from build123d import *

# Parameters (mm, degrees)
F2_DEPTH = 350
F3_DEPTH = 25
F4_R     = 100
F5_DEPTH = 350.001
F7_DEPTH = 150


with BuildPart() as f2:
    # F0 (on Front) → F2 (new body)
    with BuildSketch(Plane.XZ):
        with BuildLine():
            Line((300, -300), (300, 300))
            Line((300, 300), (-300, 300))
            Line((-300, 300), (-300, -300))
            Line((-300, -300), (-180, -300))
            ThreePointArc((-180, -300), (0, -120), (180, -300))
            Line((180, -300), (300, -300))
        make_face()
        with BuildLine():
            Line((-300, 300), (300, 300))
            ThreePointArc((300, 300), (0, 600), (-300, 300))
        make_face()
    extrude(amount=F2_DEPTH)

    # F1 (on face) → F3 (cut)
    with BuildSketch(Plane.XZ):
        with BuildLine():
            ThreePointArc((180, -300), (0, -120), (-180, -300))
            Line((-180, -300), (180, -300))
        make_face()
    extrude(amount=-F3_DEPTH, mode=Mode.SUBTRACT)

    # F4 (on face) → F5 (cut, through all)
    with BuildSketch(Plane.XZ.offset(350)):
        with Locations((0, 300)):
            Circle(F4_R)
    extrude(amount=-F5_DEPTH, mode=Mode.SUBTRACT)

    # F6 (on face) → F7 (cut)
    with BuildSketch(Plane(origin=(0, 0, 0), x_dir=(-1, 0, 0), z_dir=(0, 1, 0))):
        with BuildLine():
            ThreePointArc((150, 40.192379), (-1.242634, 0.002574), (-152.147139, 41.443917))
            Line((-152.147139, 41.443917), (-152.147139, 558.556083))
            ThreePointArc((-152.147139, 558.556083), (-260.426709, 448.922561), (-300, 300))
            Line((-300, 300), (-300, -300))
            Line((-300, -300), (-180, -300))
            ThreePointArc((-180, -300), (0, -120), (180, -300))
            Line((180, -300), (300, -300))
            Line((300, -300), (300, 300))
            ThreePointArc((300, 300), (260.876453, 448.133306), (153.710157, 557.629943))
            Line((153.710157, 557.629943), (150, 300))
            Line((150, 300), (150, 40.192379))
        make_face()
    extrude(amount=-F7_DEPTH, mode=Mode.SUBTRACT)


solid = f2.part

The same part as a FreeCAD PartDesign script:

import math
import FreeCAD as App
import Part
import Sketcher
from FreeCAD import Vector

doc = App.newDocument("Part")
body = doc.addObject("PartDesign::Body", "Body")

sketch1 = body.newObject("Sketcher::SketchObject", "Sketch")
sketch1.AttachmentSupport = (doc.getObject("XZ_Plane"), [""])
sketch1.MapMode = "FlatFace"
sketch1.addGeometry(Part.LineSegment(Vector(300, -300, 0), Vector(300, 300, 0)), False)
sketch1.addGeometry(Part.ArcOfCircle(Part.Circle(Vector(0, 300, 0), Vector(0, 0, 1), 300), math.radians(0), math.radians(180)), False)
sketch1.addGeometry(Part.LineSegment(Vector(-300, 300, 0), Vector(-300, -300, 0)), False)
sketch1.addGeometry(Part.LineSegment(Vector(-300, -300, 0), Vector(-180, -300, 0)), False)
sketch1.addGeometry(Part.ArcOfCircle(Part.Circle(Vector(0, -300, 0), Vector(0, 0, 1), 180), math.radians(0), math.radians(180)), False)
sketch1.addGeometry(Part.LineSegment(Vector(180, -300, 0), Vector(300, -300, 0)), False)
sketch1.addConstraint(Sketcher.Constraint("Tangent", 0, 2, 1, 1))
sketch1.addConstraint(Sketcher.Constraint("Tangent", 1, 2, 2, 1))
sketch1.addConstraint(Sketcher.Constraint("Coincident", 2, 2, 3, 1))
sketch1.addConstraint(Sketcher.Constraint("Coincident", 3, 2, 4, 2))
sketch1.addConstraint(Sketcher.Constraint("Coincident", 4, 1, 5, 1))
sketch1.addConstraint(Sketcher.Constraint("Coincident", 5, 2, 0, 1))
sketch1.addConstraint(Sketcher.Constraint("Vertical", 0))
sketch1.addConstraint(Sketcher.Constraint("Vertical", 2))
sketch1.addConstraint(Sketcher.Constraint("Horizontal", 3))
sketch1.addConstraint(Sketcher.Constraint("Horizontal", 5))
sketch1.addConstraint(Sketcher.Constraint("Symmetric", 1, 3, 4, 3, -1, 1))
sketch1.addConstraint(Sketcher.Constraint("Symmetric", 0, 2, 2, 2, -1, 1))
sketch1.addConstraint(Sketcher.Constraint("Horizontal", 3, 2, 4, 1))
sketch1.addConstraint(Sketcher.Constraint("Radius", 1, 300.0))
sketch1.addConstraint(Sketcher.Constraint("Radius", 4, 180.0))
sketch1.addConstraint(Sketcher.Constraint("DistanceY", 0, 1, 0, 2, 600.0))
pad1 = body.newObject("PartDesign::Pad", "Pad")
pad1.Profile = sketch1
pad1.Length = 350

sketch2 = body.newObject("Sketcher::SketchObject", "Sketch001")
sketch2.AttachmentSupport = (doc.getObject("XZ_Plane"), [""])
sketch2.MapMode = "FlatFace"
sketch2.addGeometry(Part.ArcOfCircle(Part.Circle(Vector(0, -300, 0), Vector(0, 0, 1), 180), math.radians(0), math.radians(180)), False)
sketch2.addGeometry(Part.LineSegment(Vector(-180, -300, 0), Vector(180, -300, 0)), False)
sketch2.addConstraint(Sketcher.Constraint("Coincident", 0, 1, 1, 2))
sketch2.addConstraint(Sketcher.Constraint("Coincident", 1, 1, 0, 2))
sketch2.addConstraint(Sketcher.Constraint("Horizontal", 1))
sketch2.addConstraint(Sketcher.Constraint("PointOnObject", 0, 3, -2))
sketch2.addConstraint(Sketcher.Constraint("Radius", 0, 180.0))
sketch2.addConstraint(Sketcher.Constraint("DistanceY", 0, 3, -1, 1, 300.0))
sketch2.addConstraint(Sketcher.Constraint("DistanceY", 0, 1, -1, 1, 300.0))
pocket1 = body.newObject("PartDesign::Pocket", "Pocket")
pocket1.Profile = sketch2
pocket1.Length = 25

sketch3 = body.newObject("Sketcher::SketchObject", "Sketch002")
sketch3.AttachmentSupport = (doc.getObject("XZ_Plane"), [""])
sketch3.MapMode = "FlatFace"
sketch3.AttachmentOffset = App.Placement(Vector(0, 0, 350), App.Rotation())
sketch3.addGeometry(Part.Circle(Vector(0, 300, 0), Vector(0, 0, 1), 100), False)
sketch3.addConstraint(Sketcher.Constraint("PointOnObject", 0, 3, -2))
sketch3.addConstraint(Sketcher.Constraint("Diameter", 0, 200.0))
sketch3.addConstraint(Sketcher.Constraint("DistanceY", -1, 1, 0, 3, 300.0))
pocket2 = body.newObject("PartDesign::Pocket", "Pocket001")
pocket2.Profile = sketch3
pocket2.Type = "ThroughAll"

sketch4 = body.newObject("Sketcher::SketchObject", "Sketch003")
sketch4.AttachmentSupport = (doc.getObject("XZ_Plane"), [""])
sketch4.MapMode = "FlatFace"
sketch4.addGeometry(Part.ArcOfCircle(Part.Circle(Vector(0, 300, 0), Vector(0, 0, 1), 300), math.radians(-120), math.radians(-60)), False)
sketch4.addGeometry(Part.LineSegment(Vector(152, 41, 0), Vector(152, 559, 0)), False)
sketch4.addGeometry(Part.ArcOfCircle(Part.Circle(Vector(0, 300, 0), Vector(0, 0, 1), 300), math.radians(0), math.radians(60)), False)
sketch4.addGeometry(Part.LineSegment(Vector(300, 300, 0), Vector(300, -300, 0)), False)
sketch4.addGeometry(Part.LineSegment(Vector(300, -300, 0), Vector(180, -300, 0)), False)
sketch4.addGeometry(Part.ArcOfCircle(Part.Circle(Vector(0, -300, 0), Vector(0, 0, 1), 180), math.radians(0), math.radians(180)), False)
sketch4.addGeometry(Part.LineSegment(Vector(-180, -300, 0), Vector(-300, -300, 0)), False)
sketch4.addGeometry(Part.LineSegment(Vector(-300, -300, 0), Vector(-300, 300, 0)), False)
sketch4.addGeometry(Part.ArcOfCircle(Part.Circle(Vector(0, 300, 0), Vector(0, 0, 1), 300), math.radians(121), math.radians(180)), False)
sketch4.addGeometry(Part.LineSegment(Vector(-154, 558, 0), Vector(-150, 300, 0)), False)
sketch4.addGeometry(Part.LineSegment(Vector(-150, 300, 0), Vector(-150, 40, 0)), False)
sketch4.addConstraint(Sketcher.Constraint("Coincident", 0, 2, 1, 1))
sketch4.addConstraint(Sketcher.Constraint("Coincident", 1, 2, 2, 2))
sketch4.addConstraint(Sketcher.Constraint("Tangent", 2, 1, 3, 1))
sketch4.addConstraint(Sketcher.Constraint("Coincident", 3, 2, 4, 1))
sketch4.addConstraint(Sketcher.Constraint("Coincident", 4, 2, 5, 1))
sketch4.addConstraint(Sketcher.Constraint("Coincident", 5, 2, 6, 1))
sketch4.addConstraint(Sketcher.Constraint("Coincident", 6, 2, 7, 1))
sketch4.addConstraint(Sketcher.Constraint("Tangent", 7, 2, 8, 2))
sketch4.addConstraint(Sketcher.Constraint("Coincident", 8, 1, 9, 1))
sketch4.addConstraint(Sketcher.Constraint("Coincident", 9, 2, 10, 1))
sketch4.addConstraint(Sketcher.Constraint("Coincident", 10, 2, 0, 1))
sketch4.addConstraint(Sketcher.Constraint("Vertical", 1))
sketch4.addConstraint(Sketcher.Constraint("Vertical", 3))
sketch4.addConstraint(Sketcher.Constraint("Horizontal", 4))
sketch4.addConstraint(Sketcher.Constraint("Horizontal", 6))
sketch4.addConstraint(Sketcher.Constraint("Vertical", 7))
sketch4.addConstraint(Sketcher.Constraint("Vertical", 10))
sketch4.addConstraint(Sketcher.Constraint("Coincident", 2, 3, 0, 3))
sketch4.addConstraint(Sketcher.Constraint("Coincident", 8, 3, 0, 3))
sketch4.addConstraint(Sketcher.Constraint("Equal", 0, 2))
sketch4.addConstraint(Sketcher.Constraint("Equal", 2, 8))
sketch4.addConstraint(Sketcher.Constraint("Symmetric", 0, 3, 5, 3, -1, 1))
sketch4.addConstraint(Sketcher.Constraint("Symmetric", 2, 1, 6, 2, -1, 1))
sketch4.addConstraint(Sketcher.Constraint("Horizontal", 5, 3, 3, 2))
sketch4.addConstraint(Sketcher.Constraint("Horizontal", 7, 2, 9, 2))
sketch4.addConstraint(Sketcher.Constraint("Radius", 2, 300.0))
sketch4.addConstraint(Sketcher.Constraint("Radius", 5, 180.0))
sketch4.addConstraint(Sketcher.Constraint("DistanceY", 3, 2, 3, 1, 600.0))
sketch4.addConstraint(Sketcher.Constraint("DistanceX", 9, 2, -1, 1, 150.0))
sketch4.addConstraint(Sketcher.Constraint("DistanceY", 1, 1, 1, 2, 517.112166))
sketch4.addConstraint(Sketcher.Constraint("DistanceY", 0, 3, 8, 1, 257.629941))
pocket3 = body.newObject("PartDesign::Pocket", "Pocket002")
pocket3.Profile = sketch4
pocket3.Length = 150
pocket3.Reversed = True

doc.recompute()
